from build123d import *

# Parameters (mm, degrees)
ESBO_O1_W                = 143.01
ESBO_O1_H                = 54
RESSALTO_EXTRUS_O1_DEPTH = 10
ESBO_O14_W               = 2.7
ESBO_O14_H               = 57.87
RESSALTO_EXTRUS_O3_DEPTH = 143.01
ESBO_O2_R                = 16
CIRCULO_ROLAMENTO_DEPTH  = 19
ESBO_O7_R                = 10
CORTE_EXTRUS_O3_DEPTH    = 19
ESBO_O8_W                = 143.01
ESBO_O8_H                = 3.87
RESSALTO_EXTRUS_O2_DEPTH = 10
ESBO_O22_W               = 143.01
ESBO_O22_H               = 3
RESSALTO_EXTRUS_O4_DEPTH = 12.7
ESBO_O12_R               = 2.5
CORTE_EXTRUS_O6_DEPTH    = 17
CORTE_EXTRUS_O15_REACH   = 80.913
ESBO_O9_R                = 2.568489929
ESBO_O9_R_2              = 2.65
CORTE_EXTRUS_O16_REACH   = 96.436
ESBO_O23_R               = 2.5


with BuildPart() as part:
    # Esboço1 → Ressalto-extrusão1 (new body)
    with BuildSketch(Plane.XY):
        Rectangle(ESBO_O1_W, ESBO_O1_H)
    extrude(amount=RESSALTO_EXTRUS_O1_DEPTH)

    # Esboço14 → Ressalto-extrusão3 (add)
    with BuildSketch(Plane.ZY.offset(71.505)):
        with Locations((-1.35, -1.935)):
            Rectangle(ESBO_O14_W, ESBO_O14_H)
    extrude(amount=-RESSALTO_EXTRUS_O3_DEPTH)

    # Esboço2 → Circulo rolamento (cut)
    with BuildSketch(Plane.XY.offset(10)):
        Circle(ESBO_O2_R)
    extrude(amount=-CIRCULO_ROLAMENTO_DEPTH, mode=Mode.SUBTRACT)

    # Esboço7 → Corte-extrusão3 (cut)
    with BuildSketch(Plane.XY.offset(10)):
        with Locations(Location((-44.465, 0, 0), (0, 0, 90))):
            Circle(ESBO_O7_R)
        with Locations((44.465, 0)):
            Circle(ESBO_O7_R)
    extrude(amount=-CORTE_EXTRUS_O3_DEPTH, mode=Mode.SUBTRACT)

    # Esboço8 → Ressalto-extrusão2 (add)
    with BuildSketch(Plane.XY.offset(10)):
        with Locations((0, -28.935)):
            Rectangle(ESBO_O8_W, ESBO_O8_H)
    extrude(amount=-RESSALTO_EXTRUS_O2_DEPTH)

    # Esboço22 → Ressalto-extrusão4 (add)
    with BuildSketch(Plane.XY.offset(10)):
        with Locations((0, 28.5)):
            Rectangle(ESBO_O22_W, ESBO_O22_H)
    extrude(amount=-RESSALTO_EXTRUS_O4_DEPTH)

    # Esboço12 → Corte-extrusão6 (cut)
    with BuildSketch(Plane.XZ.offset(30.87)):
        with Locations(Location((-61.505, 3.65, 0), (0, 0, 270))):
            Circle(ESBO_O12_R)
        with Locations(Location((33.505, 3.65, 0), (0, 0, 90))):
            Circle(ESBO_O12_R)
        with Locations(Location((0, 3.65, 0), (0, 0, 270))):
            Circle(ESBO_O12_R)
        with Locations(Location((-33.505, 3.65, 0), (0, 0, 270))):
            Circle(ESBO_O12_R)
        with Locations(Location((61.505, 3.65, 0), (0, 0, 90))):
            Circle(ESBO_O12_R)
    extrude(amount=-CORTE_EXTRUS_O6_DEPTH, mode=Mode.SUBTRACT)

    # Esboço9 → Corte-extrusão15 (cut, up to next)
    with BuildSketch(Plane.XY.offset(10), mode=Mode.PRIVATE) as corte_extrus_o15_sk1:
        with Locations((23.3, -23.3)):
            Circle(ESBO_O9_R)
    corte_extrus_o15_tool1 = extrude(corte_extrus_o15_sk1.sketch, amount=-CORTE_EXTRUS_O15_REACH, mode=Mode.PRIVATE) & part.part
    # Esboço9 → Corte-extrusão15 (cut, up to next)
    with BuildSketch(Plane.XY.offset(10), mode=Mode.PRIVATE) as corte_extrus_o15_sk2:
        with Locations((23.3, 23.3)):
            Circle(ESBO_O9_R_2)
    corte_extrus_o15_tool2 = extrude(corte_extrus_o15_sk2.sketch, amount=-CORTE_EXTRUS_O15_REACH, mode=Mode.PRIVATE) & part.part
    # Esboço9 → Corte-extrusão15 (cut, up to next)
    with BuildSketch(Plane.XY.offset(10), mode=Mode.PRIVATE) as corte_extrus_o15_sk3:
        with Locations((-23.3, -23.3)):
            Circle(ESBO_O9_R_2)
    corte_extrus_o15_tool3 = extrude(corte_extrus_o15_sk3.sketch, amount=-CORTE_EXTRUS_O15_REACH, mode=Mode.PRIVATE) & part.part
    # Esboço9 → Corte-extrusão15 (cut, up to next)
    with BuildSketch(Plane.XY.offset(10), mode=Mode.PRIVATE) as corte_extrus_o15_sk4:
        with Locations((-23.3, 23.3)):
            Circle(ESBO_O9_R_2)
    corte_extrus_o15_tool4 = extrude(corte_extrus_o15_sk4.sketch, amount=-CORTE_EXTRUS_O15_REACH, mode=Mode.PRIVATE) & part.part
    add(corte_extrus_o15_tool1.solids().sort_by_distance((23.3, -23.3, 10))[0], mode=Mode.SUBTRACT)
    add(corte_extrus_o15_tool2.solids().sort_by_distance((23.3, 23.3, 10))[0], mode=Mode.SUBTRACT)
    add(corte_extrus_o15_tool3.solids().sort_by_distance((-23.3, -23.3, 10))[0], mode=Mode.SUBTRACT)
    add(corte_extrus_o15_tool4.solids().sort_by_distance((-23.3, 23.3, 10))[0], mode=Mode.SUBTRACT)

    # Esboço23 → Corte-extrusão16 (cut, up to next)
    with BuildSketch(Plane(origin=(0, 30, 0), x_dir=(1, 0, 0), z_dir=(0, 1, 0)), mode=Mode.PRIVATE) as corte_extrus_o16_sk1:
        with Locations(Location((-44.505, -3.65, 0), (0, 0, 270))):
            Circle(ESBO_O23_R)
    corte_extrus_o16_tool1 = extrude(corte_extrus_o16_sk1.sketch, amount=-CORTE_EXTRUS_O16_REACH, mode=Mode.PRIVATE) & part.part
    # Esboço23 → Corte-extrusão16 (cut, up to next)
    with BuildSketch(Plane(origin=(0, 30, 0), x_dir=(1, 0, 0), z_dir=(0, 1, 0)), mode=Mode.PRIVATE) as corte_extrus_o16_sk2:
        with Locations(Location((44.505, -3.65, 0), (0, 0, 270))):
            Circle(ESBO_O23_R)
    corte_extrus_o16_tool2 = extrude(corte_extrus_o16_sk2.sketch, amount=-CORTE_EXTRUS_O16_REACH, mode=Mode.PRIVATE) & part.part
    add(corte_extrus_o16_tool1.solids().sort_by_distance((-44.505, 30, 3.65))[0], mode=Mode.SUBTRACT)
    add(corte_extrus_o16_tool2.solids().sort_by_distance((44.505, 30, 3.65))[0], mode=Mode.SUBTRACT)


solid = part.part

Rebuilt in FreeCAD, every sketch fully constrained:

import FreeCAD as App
import Part
import Sketcher
from FreeCAD import Vector

doc = App.newDocument("Part")
body = doc.addObject("PartDesign::Body", "Body")

sketch1 = body.newObject("Sketcher::SketchObject", "Sketch")
sketch1.AttachmentSupport = (doc.getObject("XY_Plane"), [""])
sketch1.MapMode = "FlatFace"
sketch1.addGeometry(Part.LineSegment(Vector(-72, 27, 0), Vector(-72, -27, 0)), False)
sketch1.addGeometry(Part.LineSegment(Vector(-72, -27, 0), Vector(72, -27, 0)), False)
sketch1.addGeometry(Part.LineSegment(Vector(72, -27, 0), Vector(72, 27, 0)), False)
sketch1.addGeometry(Part.LineSegment(Vector(72, 27, 0), Vector(-72, 27, 0)), False)
sketch1.addConstraint(Sketcher.Constraint("Coincident", 0, 2, 1, 1))
sketch1.addConstraint(Sketcher.Constraint("Coincident", 1, 2, 2, 1))
sketch1.addConstraint(Sketcher.Constraint("Coincident", 2, 2, 3, 1))
sketch1.addConstraint(Sketcher.Constraint("Coincident", 3, 2, 0, 1))
sketch1.addConstraint(Sketcher.Constraint("Vertical", 0))
sketch1.addConstraint(Sketcher.Constraint("Horizontal", 1))
sketch1.addConstraint(Sketcher.Constraint("Vertical", 2))
sketch1.addConstraint(Sketcher.Constraint("Horizontal", 3))
sketch1.addConstraint(Sketcher.Constraint("Symmetric", 0, 2, 2, 2, -1, 1))
sketch1.addConstraint(Sketcher.Constraint("DistanceY", 0, 2, 0, 1, 54.0))
sketch1.addConstraint(Sketcher.Constraint("DistanceX", 1, 1, 1, 2, 143.01))
pad1 = body.newObject("PartDesign::Pad", "Pad")
pad1.Profile = sketch1
pad1.Length = 10

sketch2 = body.newObject("Sketcher::SketchObject", "Sketch001")
sketch2.AttachmentSupport = (doc.getObject("YZ_Plane"), [""])
sketch2.MapMode = "FlatFace"
sketch2.AttachmentOffset = App.Placement(Vector(0, 0, -71.505), App.Rotation())
sketch2.addGeometry(Part.LineSegment(Vector(27, -2.7, 0), Vector(-30.9, -2.7, 0)), False)
sketch2.addGeometry(Part.LineSegment(Vector(-30.9, -2.7, 0), Vector(-30.9, 0, 0)), False)
sketch2.addGeometry(Part.LineSegment(Vector(-30.9, 0, 0), Vector(27, 0, 0)), False)
sketch2.addGeometry(Part.LineSegment(Vector(27, 0, 0), Vector(27, -2.7, 0)), False)
sketch2.addConstraint(Sketcher.Constraint("Coincident", 0, 2, 1, 1))
sketch2.addConstraint(Sketcher.Constraint("Coincident", 1, 2, 2, 1))
sketch2.addConstraint(Sketcher.Constraint("Coincident", 2, 2, 3, 1))
sketch2.addConstraint(Sketcher.Constraint("Coincident", 3, 2, 0, 1))
sketch2.addConstraint(Sketcher.Constraint("Horizontal", 0))
sketch2.addConstraint(Sketcher.Constraint("Vertical", 1))
sketch2.addConstraint(Sketcher.Constraint("Horizontal", 2))
sketch2.addConstraint(Sketcher.Constraint("Vertical", 3))
sketch2.addConstraint(Sketcher.Constraint("PointOnObject", 1, 2, -1))
sketch2.addConstraint(Sketcher.Constraint("DistanceY", 1, 1, 1, 2, 2.7))
sketch2.addConstraint(Sketcher.Constraint("DistanceX", -1, 1, 2, 2, 27.0))
sketch2.addConstraint(Sketcher.Constraint("DistanceX", 0, 2, 0, 1, 57.87))
pad2 = body.newObject("PartDesign::Pad", "Pad001")
pad2.Profile = sketch2
pad2.Length = 143.01

sketch3 = body.newObject("Sketcher::SketchObject", "Sketch002")
sketch3.AttachmentSupport = (doc.getObject("XY_Plane"), [""])
sketch3.MapMode = "FlatFace"
sketch3.AttachmentOffset = App.Placement(Vector(0, 0, 10), App.Rotation())
sketch3.addGeometry(Part.Circle(Vector(0, 0, 0), Vector(0, 0, 1), 16), False)
sketch3.addConstraint(Sketcher.Constraint("Coincident", 0, 3, -1, 1))
sketch3.addConstraint(Sketcher.Constraint("Diameter", 0, 32.0))
pocket1 = body.newObject("PartDesign::Pocket", "Pocket")
pocket1.Profile = sketch3
pocket1.Length = 19

sketch4 = body.newObject("Sketcher::SketchObject", "Sketch003")
sketch4.AttachmentSupport = (doc.getObject("XY_Plane"), [""])
sketch4.MapMode = "FlatFace"
sketch4.AttachmentOffset = App.Placement(Vector(0, 0, 10), App.Rotation())
sketch4.addGeometry(Part.Circle(Vector(-44, 0, 0), Vector(0, 0, 1), 10), False)
sketch4.addGeometry(Part.Circle(Vector(44, 0, 0), Vector(0, 0, 1), 10), False)
sketch4.addConstraint(Sketcher.Constraint("Equal", 0, 1))
sketch4.addConstraint(Sketcher.Constraint("Symmetric", 0, 3, 1, 3, -1, 1))
sketch4.addConstraint(Sketcher.Constraint("PointOnObject", 0, 3, -1))
sketch4.addConstraint(Sketcher.Constraint("Diameter", 0, 20.0))
sketch4.addConstraint(Sketcher.Constraint("DistanceX", 0, 3, 1, 3, 88.93))
pocket2 = body.newObject("PartDesign::Pocket", "Pocket001")
pocket2.Profile = sketch4
pocket2.Length = 19

sketch5 = body.newObject("Sketcher::SketchObject", "Sketch004")
sketch5.AttachmentSupport = (doc.getObject("XY_Plane"), [""])
sketch5.MapMode = "FlatFace"
sketch5.AttachmentOffset = App.Placement(Vector(0, 0, 10), App.Rotation())
sketch5.addGeometry(Part.LineSegment(Vector(-71.5, -27, 0), Vector(-71.5, -30.9, 0)), False)
sketch5.addGeometry(Part.LineSegment(Vector(-71.5, -30.9, 0), Vector(71.5, -30.9, 0)), False)
sketch5.addGeometry(Part.LineSegment(Vector(71.5, -30.9, 0), Vector(71.5, -27, 0)), False)
sketch5.addGeometry(Part.LineSegment(Vector(71.5, -27, 0), Vector(-71.5, -27, 0)), False)
sketch5.addConstraint(Sketcher.Constraint("Coincident", 0, 2, 1, 1))
sketch5.addConstraint(Sketcher.Constraint("Coincident", 1, 2, 2, 1))
sketch5.addConstraint(Sketcher.Constraint("Coincident", 2, 2, 3, 1))
sketch5.addConstraint(Sketcher.Constraint("Coincident", 3, 2, 0, 1))
sketch5.addConstraint(Sketcher.Constraint("Vertical", 0))
sketch5.addConstraint(Sketcher.Constraint("Horizontal", 1))
sketch5.addConstraint(Sketcher.Constraint("Vertical", 2))
sketch5.addConstraint(Sketcher.Constraint("Horizontal", 3))
sketch5.addConstraint(Sketcher.Constraint("DistanceY", 2, 2, -1, 1, 27.0))
sketch5.addConstraint(Sketcher.Constraint("DistanceX", 1, 1, 1, 2, 143.01))
sketch5.addConstraint(Sketcher.Constraint("DistanceY", 0, 2, 0, 1, 3.87))
sketch5.addConstraint(Sketcher.Constraint("DistanceX", 0, 2, -1, 1, 71.505))
pad3 = body.newObject("PartDesign::Pad", "Pad002")
pad3.Profile = sketch5
pad3.Length = 10
pad3.Reversed = True

sketch6 = body.newObject("Sketcher::SketchObject", "Sketch005")
sketch6.AttachmentSupport = (doc.getObject("XY_Plane"), [""])
sketch6.MapMode = "FlatFace"
sketch6.AttachmentOffset = App.Placement(Vector(0, 0, 10), App.Rotation())
sketch6.addGeometry(Part.LineSegment(Vector(-71.5, 30, 0), Vector(-71.5, 27, 0)), False)
sketch6.addGeometry(Part.LineSegment(Vector(-71.5, 27, 0), Vector(71.5, 27, 0)), False)
sketch6.addGeometry(Part.LineSegment(Vector(71.5, 27, 0), Vector(71.5, 30, 0)), False)
sketch6.addGeometry(Part.LineSegment(Vector(71.5, 30, 0), Vector(-71.5, 30, 0)), False)
sketch6.addConstraint(Sketcher.Constraint("Coincident", 0, 2, 1, 1))
sketch6.addConstraint(Sketcher.Constraint("Coincident", 1, 2, 2, 1))
sketch6.addConstraint(Sketcher.Constraint("Coincident", 2, 2, 3, 1))
sketch6.addConstraint(Sketcher.Constraint("Coincident", 3, 2, 0, 1))
sketch6.addConstraint(Sketcher.Constraint("Vertical", 0))
sketch6.addConstraint(Sketcher.Constraint("Horizontal", 1))
sketch6.addConstraint(Sketcher.Constraint("Vertical", 2))
sketch6.addConstraint(Sketcher.Constraint("Horizontal", 3))
sketch6.addConstraint(Sketcher.Constraint("DistanceY", 0, 2, 0, 1, 3.0))
sketch6.addConstraint(Sketcher.Constraint("DistanceY", -1, 1, 0, 2, 27.0))
sketch6.addConstraint(Sketcher.Constraint("DistanceX", 1, 1, 1, 2, 143.01))
sketch6.addConstraint(Sketcher.Constraint("DistanceX", 0, 2, -1, 1, 71.505))
pad4 = body.newObject("PartDesign::Pad", "Pad003")
pad4.Profile = sketch6
pad4.Length = 12.7
pad4.Reversed = True

sketch7 = body.newObject("Sketcher::SketchObject", "Sketch006")
sketch7.AttachmentSupport = (doc.getObject("XZ_Plane"), [""])
sketch7.MapMode = "FlatFace"
sketch7.AttachmentOffset = App.Placement(Vector(0, 0, 30.87), App.Rotation())
sketch7.addGeometry(Part.Circle(Vector(-61.5, 3.6, 0), Vector(0, 0, 1), 2.5), False)
sketch7.addGeometry(Part.Circle(Vector(33.5, 3.6, 0), Vector(0, 0, 1), 2.5), False)
sketch7.addGeometry(Part.Circle(Vector(0, 3.6, 0), Vector(0, 0, 1), 2.5), False)
sketch7.addGeometry(Part.Circle(Vector(-33.5, 3.6, 0), Vector(0, 0, 1), 2.5), False)
sketch7.addGeometry(Part.Circle(Vector(61.5, 3.6, 0), Vector(0, 0, 1), 2.5), False)
sketch7.addConstraint(Sketcher.Constraint("Equal", 0, 1))
sketch7.addConstraint(Sketcher.Constraint("Equal", 1, 2))
sketch7.addConstraint(Sketcher.Constraint("Equal", 2, 3))
sketch7.addConstraint(Sketcher.Constraint("Equal", 3, 4))
sketch7.addConstraint(Sketcher.Constraint("Symmetric", 1, 3, 3, 3, -2))
sketch7.addConstraint(Sketcher.Constraint("Symmetric", 0, 3, 4, 3, -2))
sketch7.addConstraint(Sketcher.Constraint("PointOnObject", 2, 3, -2))
sketch7.addConstraint(Sketcher.Constraint("Horizontal", 0, 3, 1, 3))
sketch7.addConstraint(Sketcher.Constraint("Horizontal", 1, 3, 2, 3))
sketch7.addConstraint(Sketcher.Constraint("Diameter", 0, 5.0))
sketch7.addConstraint(Sketcher.Constraint("DistanceX", 0, 3, 3, 3, 28.0))
sketch7.addConstraint(Sketcher.Constraint("DistanceY", -1, 1, 0, 3, 3.65))
sketch7.addConstraint(Sketcher.Constraint("DistanceX", 0, 3, 1, 3, 95.01))
pocket3 = body.newObject("PartDesign::Pocket", "Pocket002")
pocket3.Profile = sketch7
pocket3.Length = 17

sketch8 = body.newObject("Sketcher::SketchObject", "Sketch007")
sketch8.AttachmentSupport = (doc.getObject("XY_Plane"), [""])
sketch8.MapMode = "FlatFace"
sketch8.AttachmentOffset = App.Placement(Vector(0, 0, 10), App.Rotation())
sketch8.addGeometry(Part.Circle(Vector(23.3, -23.3, 0), Vector(0, 0, 1), 2.6), False)
sketch8.addConstraint(Sketcher.Constraint("DistanceX", -1, 1, 0, 3, 23.3))
sketch8.addConstraint(Sketcher.Constraint("DistanceY", 0, 3, -1, 1, 23.3))
sketch8.addConstraint(Sketcher.Constraint("Diameter", 0, 5.13698))
pocket4 = body.newObject("PartDesign::Pocket", "Pocket003")
pocket4.Profile = sketch8
pocket4.Type = "UpToFirst"

sketch9 = body.newObject("Sketcher::SketchObject", "Sketch008")
sketch9.AttachmentSupport = (doc.getObject("XY_Plane"), [""])
sketch9.MapMode = "FlatFace"
sketch9.AttachmentOffset = App.Placement(Vector(0, 0, 10), App.Rotation())
sketch9.addGeometry(Part.Circle(Vector(23.3, 23.3, 0), Vector(0, 0, 1), 2.6), False)
sketch9.addConstraint(Sketcher.Constraint("Diameter", 0, 5.3))
sketch9.addConstraint(Sketcher.Constraint("DistanceX", -1, 1, 0, 3, 23.3))
sketch9.addConstraint(Sketcher.Constraint("DistanceY", -1, 1, 0, 3, 23.3))
pocket5 = body.newObject("PartDesign::Pocket", "Pocket004")
pocket5.Profile = sketch9
pocket5.Type = "UpToFirst"

sketch10 = body.newObject("Sketcher::SketchObject", "Sketch009")
sketch10.AttachmentSupport = (doc.getObject("XY_Plane"), [""])
sketch10.MapMode = "FlatFace"
sketch10.AttachmentOffset = App.Placement(Vector(0, 0, 10), App.Rotation())
sketch10.addGeometry(Part.Circle(Vector(-23.3, -23.3, 0), Vector(0, 0, 1), 2.6), False)
sketch10.addConstraint(Sketcher.Constraint("Diameter", 0, 5.3))
sketch10.addConstraint(Sketcher.Constraint("DistanceX", 0, 3, -1, 1, 23.3))
sketch10.addConstraint(Sketcher.Constraint("DistanceY", 0, 3, -1, 1, 23.3))
pocket6 = body.newObject("PartDesign::Pocket", "Pocket005")
pocket6.Profile = sketch10
pocket6.Type = "UpToFirst"

sketch11 = body.newObject("Sketcher::SketchObject", "Sketch010")
sketch11.AttachmentSupport = (doc.getObject("XY_Plane"), [""])
sketch11.MapMode = "FlatFace"
sketch11.AttachmentOffset = App.Placement(Vector(0, 0, 10), App.Rotation())
sketch11.addGeometry(Part.Circle(Vector(-23.3, 23.3, 0), Vector(0, 0, 1), 2.6), False)
sketch11.addConstraint(Sketcher.Constraint("Diameter", 0, 5.3))
sketch11.addConstraint(Sketcher.Constraint("DistanceX", 0, 3, -1, 1, 23.3))
sketch11.addConstraint(Sketcher.Constraint("DistanceY", -1, 1, 0, 3, 23.3))
pocket7 = body.newObject("PartDesign::Pocket", "Pocket006")
pocket7.Profile = sketch11
pocket7.Type = "UpToFirst"

sketch12 = body.newObject("Sketcher::SketchObject", "Sketch011")
sketch12.AttachmentSupport = (doc.getObject("XZ_Plane"), [""])
sketch12.MapMode = "FlatFace"
sketch12.AttachmentOffset = App.Placement(Vector(0, 0, -30), App.Rotation())
sketch12.addGeometry(Part.Circle(Vector(-44.5, 3.6, 0), Vector(0, 0, 1), 2.5), False)
sketch12.addConstraint(Sketcher.Constraint("Diameter", 0, 5.0))
sketch12.addConstraint(Sketcher.Constraint("DistanceY", -1, 1, 0, 3, 3.65))
sketch12.addConstraint(Sketcher.Constraint("DistanceX", 0, 3, -1, 1, 44.505))
pocket8 = body.newObject("PartDesign::Pocket", "Pocket007")
pocket8.Profile = sketch12
pocket8.Type = "UpToFirst"
pocket8.Reversed = True

sketch13 = body.newObject("Sketcher::SketchObject", "Sketch012")
sketch13.AttachmentSupport = (doc.getObject("XZ_Plane"), [""])
sketch13.MapMode = "FlatFace"
sketch13.AttachmentOffset = App.Placement(Vector(0, 0, -30), App.Rotation())
sketch13.addGeometry(Part.Circle(Vector(44.5, 3.6, 0), Vector(0, 0, 1), 2.5), False)
sketch13.addConstraint(Sketcher.Constraint("Diameter", 0, 5.0))
sketch13.addConstraint(Sketcher.Constraint("DistanceY", -1, 1, 0, 3, 3.65))
sketch13.addConstraint(Sketcher.Constraint("DistanceX", -1, 1, 0, 3, 44.505))
pocket9 = body.newObject("PartDesign::Pocket", "Pocket008")
pocket9.Profile = sketch13
pocket9.Type = "UpToFirst"
pocket9.Reversed = True

doc.recompute()
